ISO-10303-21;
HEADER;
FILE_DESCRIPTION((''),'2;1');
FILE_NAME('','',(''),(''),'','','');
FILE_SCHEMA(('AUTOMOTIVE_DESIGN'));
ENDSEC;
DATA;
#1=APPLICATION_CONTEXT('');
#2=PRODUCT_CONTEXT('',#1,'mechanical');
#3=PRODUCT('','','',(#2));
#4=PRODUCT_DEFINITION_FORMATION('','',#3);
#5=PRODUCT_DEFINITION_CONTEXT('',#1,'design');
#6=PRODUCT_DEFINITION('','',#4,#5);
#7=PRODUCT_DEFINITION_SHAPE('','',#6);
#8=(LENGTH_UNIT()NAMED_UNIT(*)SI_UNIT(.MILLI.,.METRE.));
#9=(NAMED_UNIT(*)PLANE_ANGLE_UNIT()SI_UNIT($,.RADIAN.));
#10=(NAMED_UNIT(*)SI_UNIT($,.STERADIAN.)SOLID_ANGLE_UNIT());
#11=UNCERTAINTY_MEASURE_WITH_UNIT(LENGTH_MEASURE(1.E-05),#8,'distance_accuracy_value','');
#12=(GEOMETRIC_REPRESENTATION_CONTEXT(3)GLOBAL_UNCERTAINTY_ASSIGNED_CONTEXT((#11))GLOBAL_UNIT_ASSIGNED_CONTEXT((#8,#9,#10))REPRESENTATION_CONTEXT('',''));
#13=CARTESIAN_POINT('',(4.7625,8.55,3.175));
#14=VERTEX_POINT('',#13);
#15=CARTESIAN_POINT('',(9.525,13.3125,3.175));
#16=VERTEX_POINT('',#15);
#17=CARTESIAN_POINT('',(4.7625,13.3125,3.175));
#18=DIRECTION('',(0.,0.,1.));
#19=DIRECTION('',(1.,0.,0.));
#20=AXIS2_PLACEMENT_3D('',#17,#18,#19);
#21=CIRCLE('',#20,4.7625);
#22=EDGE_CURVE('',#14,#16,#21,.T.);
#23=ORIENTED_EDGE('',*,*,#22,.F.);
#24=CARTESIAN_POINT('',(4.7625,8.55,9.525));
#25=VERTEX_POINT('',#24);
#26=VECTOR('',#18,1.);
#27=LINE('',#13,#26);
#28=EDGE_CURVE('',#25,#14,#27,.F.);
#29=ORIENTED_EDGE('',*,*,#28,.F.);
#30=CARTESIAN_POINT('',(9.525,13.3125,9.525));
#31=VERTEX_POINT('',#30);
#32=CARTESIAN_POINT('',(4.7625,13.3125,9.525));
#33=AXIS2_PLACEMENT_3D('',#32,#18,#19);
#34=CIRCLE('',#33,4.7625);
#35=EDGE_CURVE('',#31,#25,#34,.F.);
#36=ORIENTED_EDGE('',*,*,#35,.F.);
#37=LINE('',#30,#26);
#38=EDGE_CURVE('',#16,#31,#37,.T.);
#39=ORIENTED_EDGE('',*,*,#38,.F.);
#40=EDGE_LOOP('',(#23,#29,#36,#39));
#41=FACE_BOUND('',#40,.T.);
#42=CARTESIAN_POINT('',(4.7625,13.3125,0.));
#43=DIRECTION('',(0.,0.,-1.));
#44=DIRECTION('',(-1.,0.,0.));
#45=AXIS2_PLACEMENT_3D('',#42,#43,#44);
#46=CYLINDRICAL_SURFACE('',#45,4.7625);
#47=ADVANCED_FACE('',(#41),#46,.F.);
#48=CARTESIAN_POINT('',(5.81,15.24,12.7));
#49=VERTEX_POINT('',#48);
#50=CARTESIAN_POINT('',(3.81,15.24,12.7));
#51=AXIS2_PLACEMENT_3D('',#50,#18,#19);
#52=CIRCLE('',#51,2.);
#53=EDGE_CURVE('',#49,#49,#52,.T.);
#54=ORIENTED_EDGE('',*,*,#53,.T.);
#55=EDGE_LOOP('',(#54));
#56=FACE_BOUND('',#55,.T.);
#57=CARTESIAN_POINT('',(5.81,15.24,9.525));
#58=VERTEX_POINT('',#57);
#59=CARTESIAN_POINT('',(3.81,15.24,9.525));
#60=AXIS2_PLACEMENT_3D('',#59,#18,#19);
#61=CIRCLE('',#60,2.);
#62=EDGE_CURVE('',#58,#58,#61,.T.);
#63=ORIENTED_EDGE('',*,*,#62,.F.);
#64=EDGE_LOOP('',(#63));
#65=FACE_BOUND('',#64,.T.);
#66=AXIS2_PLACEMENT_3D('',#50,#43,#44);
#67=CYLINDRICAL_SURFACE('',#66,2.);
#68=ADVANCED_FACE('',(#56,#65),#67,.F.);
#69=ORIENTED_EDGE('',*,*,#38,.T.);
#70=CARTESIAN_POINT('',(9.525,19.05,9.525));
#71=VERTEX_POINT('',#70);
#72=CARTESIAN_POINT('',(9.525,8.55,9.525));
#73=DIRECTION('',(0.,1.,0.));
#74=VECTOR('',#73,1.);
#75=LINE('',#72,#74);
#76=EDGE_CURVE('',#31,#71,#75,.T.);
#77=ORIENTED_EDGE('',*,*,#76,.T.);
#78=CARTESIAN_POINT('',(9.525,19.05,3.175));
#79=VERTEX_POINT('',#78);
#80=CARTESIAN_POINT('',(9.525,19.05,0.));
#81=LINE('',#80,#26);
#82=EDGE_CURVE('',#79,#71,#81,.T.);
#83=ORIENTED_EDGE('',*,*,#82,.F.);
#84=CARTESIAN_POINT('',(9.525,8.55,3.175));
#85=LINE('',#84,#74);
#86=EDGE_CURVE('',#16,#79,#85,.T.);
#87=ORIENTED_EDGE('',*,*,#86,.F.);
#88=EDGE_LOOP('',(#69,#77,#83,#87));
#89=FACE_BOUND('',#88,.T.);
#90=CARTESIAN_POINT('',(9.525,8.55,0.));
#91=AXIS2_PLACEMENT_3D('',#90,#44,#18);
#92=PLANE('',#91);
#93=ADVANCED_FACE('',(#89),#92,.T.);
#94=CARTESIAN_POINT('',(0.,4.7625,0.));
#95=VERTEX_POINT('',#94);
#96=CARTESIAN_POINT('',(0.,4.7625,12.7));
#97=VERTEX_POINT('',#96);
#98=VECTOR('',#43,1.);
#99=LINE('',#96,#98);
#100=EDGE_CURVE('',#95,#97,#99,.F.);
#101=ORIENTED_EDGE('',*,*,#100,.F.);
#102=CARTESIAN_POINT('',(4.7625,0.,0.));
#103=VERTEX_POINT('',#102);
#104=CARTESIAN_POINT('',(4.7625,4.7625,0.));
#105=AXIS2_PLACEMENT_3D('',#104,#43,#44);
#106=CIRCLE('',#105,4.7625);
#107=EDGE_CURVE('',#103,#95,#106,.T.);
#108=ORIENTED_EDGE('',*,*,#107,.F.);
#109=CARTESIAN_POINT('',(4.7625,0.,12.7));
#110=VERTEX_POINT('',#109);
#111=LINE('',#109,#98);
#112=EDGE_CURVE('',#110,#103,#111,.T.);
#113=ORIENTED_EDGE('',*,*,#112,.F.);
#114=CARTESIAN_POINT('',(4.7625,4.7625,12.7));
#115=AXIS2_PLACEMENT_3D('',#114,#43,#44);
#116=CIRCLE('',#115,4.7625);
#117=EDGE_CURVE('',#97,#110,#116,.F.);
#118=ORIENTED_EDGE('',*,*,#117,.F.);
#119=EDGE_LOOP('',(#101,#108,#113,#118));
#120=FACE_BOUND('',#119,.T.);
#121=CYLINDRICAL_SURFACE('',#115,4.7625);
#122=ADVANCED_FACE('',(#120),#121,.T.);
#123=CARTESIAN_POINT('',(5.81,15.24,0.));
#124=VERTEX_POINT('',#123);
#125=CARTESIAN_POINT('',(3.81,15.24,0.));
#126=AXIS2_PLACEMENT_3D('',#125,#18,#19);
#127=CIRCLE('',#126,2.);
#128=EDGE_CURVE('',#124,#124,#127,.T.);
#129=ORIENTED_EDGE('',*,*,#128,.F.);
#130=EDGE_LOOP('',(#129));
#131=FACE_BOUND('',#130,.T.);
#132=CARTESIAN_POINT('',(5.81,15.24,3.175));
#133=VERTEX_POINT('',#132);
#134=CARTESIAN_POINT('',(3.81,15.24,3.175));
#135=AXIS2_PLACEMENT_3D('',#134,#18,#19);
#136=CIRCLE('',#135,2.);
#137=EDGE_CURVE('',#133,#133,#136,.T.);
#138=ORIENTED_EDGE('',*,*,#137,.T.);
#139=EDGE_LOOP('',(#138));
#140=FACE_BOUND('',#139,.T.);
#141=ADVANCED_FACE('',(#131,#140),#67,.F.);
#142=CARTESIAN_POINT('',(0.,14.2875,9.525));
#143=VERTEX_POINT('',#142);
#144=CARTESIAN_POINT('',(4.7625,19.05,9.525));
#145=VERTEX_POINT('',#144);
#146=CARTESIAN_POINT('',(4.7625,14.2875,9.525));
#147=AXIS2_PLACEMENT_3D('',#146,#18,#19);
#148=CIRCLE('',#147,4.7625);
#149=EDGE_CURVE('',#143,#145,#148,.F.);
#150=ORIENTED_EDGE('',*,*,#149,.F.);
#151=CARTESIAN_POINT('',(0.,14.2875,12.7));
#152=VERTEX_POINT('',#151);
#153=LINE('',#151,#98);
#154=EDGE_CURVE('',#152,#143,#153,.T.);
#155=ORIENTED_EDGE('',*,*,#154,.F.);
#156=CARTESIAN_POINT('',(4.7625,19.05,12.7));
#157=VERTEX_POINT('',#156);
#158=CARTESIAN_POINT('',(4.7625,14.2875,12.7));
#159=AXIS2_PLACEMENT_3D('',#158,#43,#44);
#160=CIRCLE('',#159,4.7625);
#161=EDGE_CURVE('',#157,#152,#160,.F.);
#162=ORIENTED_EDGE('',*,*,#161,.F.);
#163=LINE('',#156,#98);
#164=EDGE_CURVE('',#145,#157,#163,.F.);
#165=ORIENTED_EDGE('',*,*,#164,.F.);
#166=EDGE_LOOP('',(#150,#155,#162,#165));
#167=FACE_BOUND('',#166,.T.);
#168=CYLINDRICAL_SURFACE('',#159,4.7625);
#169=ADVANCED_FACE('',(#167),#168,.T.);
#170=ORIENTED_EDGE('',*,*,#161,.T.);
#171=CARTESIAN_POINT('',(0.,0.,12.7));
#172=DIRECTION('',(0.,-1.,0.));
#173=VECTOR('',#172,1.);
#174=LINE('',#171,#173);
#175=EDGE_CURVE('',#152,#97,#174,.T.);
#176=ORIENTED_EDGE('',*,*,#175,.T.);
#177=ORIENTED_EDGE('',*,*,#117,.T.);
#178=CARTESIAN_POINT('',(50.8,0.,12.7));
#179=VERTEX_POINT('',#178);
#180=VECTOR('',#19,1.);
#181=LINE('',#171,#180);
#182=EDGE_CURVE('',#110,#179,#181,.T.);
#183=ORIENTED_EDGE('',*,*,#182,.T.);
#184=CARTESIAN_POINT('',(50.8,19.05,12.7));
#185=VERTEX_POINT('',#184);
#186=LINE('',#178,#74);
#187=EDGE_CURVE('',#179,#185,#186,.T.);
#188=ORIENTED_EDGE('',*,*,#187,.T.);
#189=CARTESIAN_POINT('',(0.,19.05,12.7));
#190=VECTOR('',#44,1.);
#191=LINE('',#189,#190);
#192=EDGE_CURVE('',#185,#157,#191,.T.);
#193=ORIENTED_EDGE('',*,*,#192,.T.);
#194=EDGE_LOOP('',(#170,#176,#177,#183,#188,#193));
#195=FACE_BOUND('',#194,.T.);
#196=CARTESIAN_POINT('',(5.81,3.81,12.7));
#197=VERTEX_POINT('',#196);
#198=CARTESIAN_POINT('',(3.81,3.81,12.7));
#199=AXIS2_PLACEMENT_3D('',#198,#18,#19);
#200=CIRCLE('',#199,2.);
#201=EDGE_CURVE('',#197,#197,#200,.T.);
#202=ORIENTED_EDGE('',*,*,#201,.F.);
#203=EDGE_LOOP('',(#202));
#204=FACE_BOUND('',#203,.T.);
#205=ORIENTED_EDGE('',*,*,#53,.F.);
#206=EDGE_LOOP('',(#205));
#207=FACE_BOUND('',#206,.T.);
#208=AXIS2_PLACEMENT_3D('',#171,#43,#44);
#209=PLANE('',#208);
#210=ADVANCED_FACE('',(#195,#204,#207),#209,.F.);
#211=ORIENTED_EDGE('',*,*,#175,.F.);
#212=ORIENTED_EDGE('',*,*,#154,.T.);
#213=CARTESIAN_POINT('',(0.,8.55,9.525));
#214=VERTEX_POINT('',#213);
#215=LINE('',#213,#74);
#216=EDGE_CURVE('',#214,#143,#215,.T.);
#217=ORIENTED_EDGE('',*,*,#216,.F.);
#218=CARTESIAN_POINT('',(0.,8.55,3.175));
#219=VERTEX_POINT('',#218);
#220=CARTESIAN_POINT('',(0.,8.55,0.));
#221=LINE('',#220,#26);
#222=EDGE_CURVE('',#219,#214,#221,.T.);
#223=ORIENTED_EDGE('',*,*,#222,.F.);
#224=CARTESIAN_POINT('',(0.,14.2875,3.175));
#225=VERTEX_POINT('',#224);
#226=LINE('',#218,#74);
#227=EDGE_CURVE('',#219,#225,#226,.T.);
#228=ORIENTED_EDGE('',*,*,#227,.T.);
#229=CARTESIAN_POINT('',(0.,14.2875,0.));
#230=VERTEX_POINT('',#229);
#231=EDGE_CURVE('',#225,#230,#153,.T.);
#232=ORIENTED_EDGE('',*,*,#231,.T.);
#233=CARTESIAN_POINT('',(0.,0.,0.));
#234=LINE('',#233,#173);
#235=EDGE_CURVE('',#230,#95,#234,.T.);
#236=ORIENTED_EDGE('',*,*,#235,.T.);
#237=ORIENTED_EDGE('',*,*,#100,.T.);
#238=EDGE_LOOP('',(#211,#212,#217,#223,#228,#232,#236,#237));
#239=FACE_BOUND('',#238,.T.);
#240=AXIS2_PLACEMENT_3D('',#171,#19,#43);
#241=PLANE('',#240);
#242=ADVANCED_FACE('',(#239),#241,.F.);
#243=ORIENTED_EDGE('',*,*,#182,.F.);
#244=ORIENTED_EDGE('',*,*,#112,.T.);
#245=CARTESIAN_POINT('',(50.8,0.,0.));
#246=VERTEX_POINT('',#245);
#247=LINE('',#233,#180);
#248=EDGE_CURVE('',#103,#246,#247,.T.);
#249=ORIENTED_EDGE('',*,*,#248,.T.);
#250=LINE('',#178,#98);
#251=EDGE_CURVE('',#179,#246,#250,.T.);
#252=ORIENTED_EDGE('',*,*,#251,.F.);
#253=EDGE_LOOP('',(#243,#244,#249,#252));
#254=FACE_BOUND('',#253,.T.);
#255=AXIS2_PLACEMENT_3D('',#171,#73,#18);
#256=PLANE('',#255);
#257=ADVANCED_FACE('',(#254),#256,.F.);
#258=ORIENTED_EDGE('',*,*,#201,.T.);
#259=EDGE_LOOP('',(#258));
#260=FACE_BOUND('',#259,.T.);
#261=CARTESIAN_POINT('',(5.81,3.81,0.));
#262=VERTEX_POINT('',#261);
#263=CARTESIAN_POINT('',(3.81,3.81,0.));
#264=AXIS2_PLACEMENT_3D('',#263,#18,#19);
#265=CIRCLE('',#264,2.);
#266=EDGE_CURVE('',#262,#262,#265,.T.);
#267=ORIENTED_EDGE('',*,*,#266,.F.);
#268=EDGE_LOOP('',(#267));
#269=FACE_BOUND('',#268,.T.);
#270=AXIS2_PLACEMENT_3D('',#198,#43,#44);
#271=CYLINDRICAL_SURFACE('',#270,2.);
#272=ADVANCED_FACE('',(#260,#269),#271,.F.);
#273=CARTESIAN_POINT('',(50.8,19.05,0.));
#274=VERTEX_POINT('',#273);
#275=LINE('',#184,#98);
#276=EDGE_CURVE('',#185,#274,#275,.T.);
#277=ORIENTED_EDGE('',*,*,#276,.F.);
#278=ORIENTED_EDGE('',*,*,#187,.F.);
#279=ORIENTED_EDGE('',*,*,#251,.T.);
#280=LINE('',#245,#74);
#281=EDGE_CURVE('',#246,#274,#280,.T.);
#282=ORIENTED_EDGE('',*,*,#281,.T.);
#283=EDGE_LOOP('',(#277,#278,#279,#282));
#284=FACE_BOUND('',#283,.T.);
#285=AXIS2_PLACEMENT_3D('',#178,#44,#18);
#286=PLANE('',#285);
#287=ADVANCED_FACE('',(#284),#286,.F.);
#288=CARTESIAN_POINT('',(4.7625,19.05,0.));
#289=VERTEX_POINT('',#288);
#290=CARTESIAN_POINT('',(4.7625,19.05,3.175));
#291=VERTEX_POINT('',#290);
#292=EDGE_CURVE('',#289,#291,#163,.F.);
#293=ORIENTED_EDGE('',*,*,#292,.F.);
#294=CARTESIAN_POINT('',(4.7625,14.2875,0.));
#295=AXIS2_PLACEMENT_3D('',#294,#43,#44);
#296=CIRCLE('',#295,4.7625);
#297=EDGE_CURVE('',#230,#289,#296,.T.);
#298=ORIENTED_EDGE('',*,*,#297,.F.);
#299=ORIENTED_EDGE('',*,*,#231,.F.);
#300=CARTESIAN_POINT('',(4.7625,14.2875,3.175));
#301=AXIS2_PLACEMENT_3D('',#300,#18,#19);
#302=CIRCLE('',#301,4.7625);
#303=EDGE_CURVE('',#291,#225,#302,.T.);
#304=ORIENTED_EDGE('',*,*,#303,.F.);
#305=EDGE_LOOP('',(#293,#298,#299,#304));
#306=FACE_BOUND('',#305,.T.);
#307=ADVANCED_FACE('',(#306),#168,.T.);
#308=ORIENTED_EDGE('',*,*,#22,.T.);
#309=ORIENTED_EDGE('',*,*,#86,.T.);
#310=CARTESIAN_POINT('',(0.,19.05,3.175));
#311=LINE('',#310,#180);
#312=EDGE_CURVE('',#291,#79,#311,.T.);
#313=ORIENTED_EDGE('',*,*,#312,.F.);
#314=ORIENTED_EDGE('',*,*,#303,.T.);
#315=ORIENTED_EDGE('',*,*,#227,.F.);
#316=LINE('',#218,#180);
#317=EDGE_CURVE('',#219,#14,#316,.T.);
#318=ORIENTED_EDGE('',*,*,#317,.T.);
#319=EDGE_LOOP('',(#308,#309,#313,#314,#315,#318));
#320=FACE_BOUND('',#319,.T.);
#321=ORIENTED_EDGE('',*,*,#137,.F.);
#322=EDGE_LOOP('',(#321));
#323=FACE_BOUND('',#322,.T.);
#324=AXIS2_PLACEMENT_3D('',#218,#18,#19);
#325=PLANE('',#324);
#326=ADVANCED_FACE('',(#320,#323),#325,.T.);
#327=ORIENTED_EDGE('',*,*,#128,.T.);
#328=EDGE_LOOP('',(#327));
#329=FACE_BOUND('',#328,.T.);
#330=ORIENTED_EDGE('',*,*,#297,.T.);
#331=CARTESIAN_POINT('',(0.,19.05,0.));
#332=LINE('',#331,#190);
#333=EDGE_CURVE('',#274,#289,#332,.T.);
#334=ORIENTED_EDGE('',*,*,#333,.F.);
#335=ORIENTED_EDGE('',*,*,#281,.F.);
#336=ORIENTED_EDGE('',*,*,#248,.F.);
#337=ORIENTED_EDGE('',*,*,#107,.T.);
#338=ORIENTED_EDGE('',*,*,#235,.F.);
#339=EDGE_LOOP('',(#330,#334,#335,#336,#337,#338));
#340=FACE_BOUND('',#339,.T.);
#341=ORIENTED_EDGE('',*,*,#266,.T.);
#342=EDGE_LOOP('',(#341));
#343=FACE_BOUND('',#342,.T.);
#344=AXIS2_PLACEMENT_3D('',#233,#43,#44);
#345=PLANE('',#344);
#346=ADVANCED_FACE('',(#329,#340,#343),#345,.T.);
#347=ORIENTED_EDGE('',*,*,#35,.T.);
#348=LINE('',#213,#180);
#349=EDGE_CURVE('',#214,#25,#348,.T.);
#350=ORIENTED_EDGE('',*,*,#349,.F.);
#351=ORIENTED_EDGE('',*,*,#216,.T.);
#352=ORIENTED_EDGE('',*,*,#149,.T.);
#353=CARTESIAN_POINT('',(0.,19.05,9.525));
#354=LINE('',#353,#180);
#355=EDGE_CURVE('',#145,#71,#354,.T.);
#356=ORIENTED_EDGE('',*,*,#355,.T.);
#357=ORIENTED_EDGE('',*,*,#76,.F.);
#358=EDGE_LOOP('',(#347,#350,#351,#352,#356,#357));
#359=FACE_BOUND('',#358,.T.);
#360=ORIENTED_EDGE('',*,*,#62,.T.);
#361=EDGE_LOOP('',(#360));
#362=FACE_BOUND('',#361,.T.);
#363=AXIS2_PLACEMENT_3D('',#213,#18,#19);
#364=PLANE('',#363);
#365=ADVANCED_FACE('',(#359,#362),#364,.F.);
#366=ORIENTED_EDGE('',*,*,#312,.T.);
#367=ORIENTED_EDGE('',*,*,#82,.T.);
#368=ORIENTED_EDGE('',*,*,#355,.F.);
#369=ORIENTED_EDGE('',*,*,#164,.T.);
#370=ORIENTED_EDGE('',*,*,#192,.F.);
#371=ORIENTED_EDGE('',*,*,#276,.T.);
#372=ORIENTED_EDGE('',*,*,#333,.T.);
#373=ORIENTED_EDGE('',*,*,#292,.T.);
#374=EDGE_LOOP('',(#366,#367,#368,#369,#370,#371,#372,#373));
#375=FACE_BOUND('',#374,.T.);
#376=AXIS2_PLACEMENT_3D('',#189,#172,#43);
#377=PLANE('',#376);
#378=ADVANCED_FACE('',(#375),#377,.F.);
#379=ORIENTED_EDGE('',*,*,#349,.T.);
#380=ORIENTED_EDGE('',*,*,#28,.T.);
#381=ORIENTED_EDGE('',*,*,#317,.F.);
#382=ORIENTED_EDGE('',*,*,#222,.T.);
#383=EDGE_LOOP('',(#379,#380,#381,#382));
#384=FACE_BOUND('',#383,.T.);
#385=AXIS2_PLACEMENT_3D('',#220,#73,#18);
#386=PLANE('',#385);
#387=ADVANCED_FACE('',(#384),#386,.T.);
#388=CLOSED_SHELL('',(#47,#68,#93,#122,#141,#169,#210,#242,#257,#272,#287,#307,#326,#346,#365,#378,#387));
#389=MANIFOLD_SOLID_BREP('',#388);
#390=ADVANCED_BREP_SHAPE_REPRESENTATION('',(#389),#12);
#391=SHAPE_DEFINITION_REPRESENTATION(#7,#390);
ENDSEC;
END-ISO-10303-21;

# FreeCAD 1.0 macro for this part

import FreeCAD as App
import Part
import Sketcher

V = App.Vector
Q = App.Units.Quantity


def edges_at(feature, points):
    """Names of the edges that pass closest to the given points."""
    edges = feature.Shape.Edges
    near = lambda p: min(range(len(edges)), key=lambda i: edges[i].distToShape(Part.Vertex(*p))[0])
    return sorted({f"Edge{near(p) + 1}" for p in points})


def add_polygon(sketch, points):
    """Adds a closed chain of lines whose ends are joined by coincident constraints."""
    first, n = sketch.GeometryCount, len(points)
    for a, b in zip(points, points[1:] + points[:1]):
        sketch.addGeometry(Part.LineSegment(App.Vector(*a, 0), App.Vector(*b, 0)), False)
    for i in range(n):
        sketch.addConstraint(Sketcher.Constraint("Coincident", first + i, 2, first + (i + 1) % n, 1))

doc = App.newDocument("Part")
body = doc.addObject("PartDesign::Body", "Body")

# Sketch on XY plane
sketch1 = body.newObject("Sketcher::SketchObject", "Sketch")
sketch1.AttachmentSupport = (doc.getObject("XY_Plane"), [""])
sketch1.MapMode = "FlatFace"
add_polygon(sketch1, [(0, 19.1), (0, 0), (50.8, 0), (50.8, 19.1)])  # lines 0-3
sketch1.addGeometry(Part.Circle(V(3.8, 3.8, 0), V(0, 0, 1), 2), False)  # 4
sketch1.addGeometry(Part.Circle(V(3.8, 15.2, 0), V(0, 0, 1), 2), False)  # 5
sketch1.addConstraint([
    Sketcher.Constraint("Vertical", 0),
    Sketcher.Constraint("Horizontal", 1),
    Sketcher.Constraint("Vertical", 2),
    Sketcher.Constraint("Horizontal", 3),
    Sketcher.Constraint("Coincident", 0, 2, -1, 1),
    Sketcher.Constraint("Equal", 4, 5),
    Sketcher.Constraint("Vertical", 4, 3, 5, 3),
    Sketcher.Constraint("DistanceX", 1, 1, 1, 2, Q("2 in")),
    Sketcher.Constraint("DistanceY", 0, 2, 0, 1, Q("0.75 in")),
    Sketcher.Constraint("DistanceY", -1, 1, 5, 3, Q("0.6 in")),
    Sketcher.Constraint("DistanceY", 4, 3, 2, 2, Q("0.6 in")),
    Sketcher.Constraint("Diameter", 4, 4.0),
    Sketcher.Constraint("DistanceX", -1, 1, 4, 3, Q("0.15 in")),
])
pad1 = body.newObject("PartDesign::Pad", "Pad")
pad1.Profile = sketch1
pad1.Length = Q("0.5 in")

# Sketch on XZ plane
sketch2 = body.newObject("Sketcher::SketchObject", "Sketch001")
sketch2.AttachmentSupport = (doc.getObject("XZ_Plane"), [""])
sketch2.MapMode = "FlatFace"
sketch2.AttachmentOffset = App.Placement(V(0, 0, -0.75 * 25.4), App.Rotation())
add_polygon(sketch2, [(0, 3), (0, 10), (10, 10), (10, 3)])  # lines 0-3
sketch2.addConstraint([
    Sketcher.Constraint("Vertical", 0),
    Sketcher.Constraint("Horizontal", 1),
    Sketcher.Constraint("Vertical", 2),
    Sketcher.Constraint("Horizontal", 3),
    Sketcher.Constraint("PointOnObject", 0, 2, -2),
    Sketcher.Constraint("DistanceY", 0, 1, 0, 2, Q("0.25 in")),
    Sketcher.Constraint("DistanceX", 1, 1, 1, 2, Q("0.375 in")),
    Sketcher.Constraint("DistanceY", -1, 1, 0, 2, Q("0.375 in")),
])
pocket1 = body.newObject("PartDesign::Pocket", "Pocket")
pocket1.Profile = sketch2
pocket1.Length = 10.5
pocket1.Reversed = True
doc.recompute()

fillet = body.newObject("PartDesign::Fillet", "Fillet")
fillet.Base = (pocket1, edges_at(pocket1, [(9.525, 8.55, 6.35)]))
fillet.Radius = Q("0.1875 in")
doc.recompute()

fillet2 = body.newObject("PartDesign::Fillet", "Fillet001")
fillet2.Base = (fillet, edges_at(fillet, [(0, 19.05, 1.587), (0, 19.05, 11.113), (0, 0, 6.35)]))
fillet2.Radius = Q("0.1875 in")

doc.recompute()
